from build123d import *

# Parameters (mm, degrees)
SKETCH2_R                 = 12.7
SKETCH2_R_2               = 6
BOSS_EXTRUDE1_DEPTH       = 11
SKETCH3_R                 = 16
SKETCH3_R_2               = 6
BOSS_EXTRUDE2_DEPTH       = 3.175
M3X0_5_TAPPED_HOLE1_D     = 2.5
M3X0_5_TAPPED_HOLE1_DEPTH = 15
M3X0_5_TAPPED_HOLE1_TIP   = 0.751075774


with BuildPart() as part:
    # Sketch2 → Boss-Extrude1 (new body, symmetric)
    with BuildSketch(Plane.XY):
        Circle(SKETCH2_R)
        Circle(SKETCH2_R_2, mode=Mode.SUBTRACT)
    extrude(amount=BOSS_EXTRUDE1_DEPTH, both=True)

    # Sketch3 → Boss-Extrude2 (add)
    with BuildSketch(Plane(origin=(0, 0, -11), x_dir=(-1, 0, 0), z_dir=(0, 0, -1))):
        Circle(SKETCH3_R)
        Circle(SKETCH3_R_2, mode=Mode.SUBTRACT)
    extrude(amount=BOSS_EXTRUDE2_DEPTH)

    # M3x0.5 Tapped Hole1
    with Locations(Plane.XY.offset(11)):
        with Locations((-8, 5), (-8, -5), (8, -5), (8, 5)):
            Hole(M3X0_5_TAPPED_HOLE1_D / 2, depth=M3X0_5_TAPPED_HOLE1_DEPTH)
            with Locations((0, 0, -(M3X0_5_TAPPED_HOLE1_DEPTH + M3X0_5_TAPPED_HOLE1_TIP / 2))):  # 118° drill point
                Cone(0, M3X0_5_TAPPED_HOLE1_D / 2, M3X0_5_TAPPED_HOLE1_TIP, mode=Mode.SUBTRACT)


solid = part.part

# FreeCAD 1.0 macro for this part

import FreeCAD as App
import Part
import Sketcher
Q = App.Units.Quantity

doc = App.newDocument("Part")
params = doc.addObject("Spreadsheet::Sheet", "Params")
for row, (alias, value) in enumerate([
    ("sketch1_diameter", "12 mm"),
    ("sketch1_diameter2", "25.4 mm"),
    ("pad1_length", "22 mm"),
    ("sketch2_diameter", "32 mm"),
    ("sketch2_diameter2", "12 mm"),
    ("pad2_length", "3.175 mm"),
    ("sketch3_diameter", "2.5 mm"),
    ("hole_diameter", "2.5 mm"),
    ("hole_depth", "15 mm"),
], start=1):
    params.set(f"A{row}", alias)
    params.set(f"B{row}", "=" + value)
    params.setAlias(f"B{row}", alias)

body = doc.addObject("PartDesign::Body", "Body")

sketch1 = doc.addObject("Sketcher::SketchObject", "Sketch")
body.addObject(sketch1)
sketch1.AttachmentSupport = (doc.XY_Plane, [""])
sketch1.MapMode = "FlatFace"
sketch1.addGeometry([
    Part.Circle(App.Vector(0, 0, 0), App.Vector(0, 0, 1), 13),
    Part.Circle(App.Vector(0, 0, 0), App.Vector(0, 0, 1), 6),
], False)
sketch1.addConstraint([
    Sketcher.Constraint("Coincident", 0, 3, -1, 1),
    Sketcher.Constraint("Coincident", 1, 3, -1, 1),
    Sketcher.Constraint("Diameter", 1, Q("12 mm")),
    Sketcher.Constraint("Diameter", 0, Q("25.4 mm")),
])
sketch1.setExpression("Constraints[2]", "Params.sketch1_diameter")
sketch1.setExpression("Constraints[3]", "Params.sketch1_diameter2")
pad1 = doc.addObject("PartDesign::Pad", "Pad")
body.addObject(pad1)
pad1.Profile = sketch1
pad1.setExpression("Length", "Params.pad1_length")
pad1.Midplane = True

sketch2 = doc.addObject("Sketcher::SketchObject", "Sketch001")
body.addObject(sketch2)
sketch2.AttachmentSupport = (doc.XY_Plane, [""])
sketch2.MapMode = "FlatFace"
sketch2.AttachmentOffset = App.Placement(App.Vector(0, 0, -11), App.Rotation())
sketch2.addGeometry([
    Part.Circle(App.Vector(0, 0, 0), App.Vector(0, 0, 1), 16),
    Part.Circle(App.Vector(0, 0, 0), App.Vector(0, 0, 1), 6),
], False)
sketch2.addConstraint([
    Sketcher.Constraint("Coincident", 0, 3, -1, 1),
    Sketcher.Constraint("Coincident", 1, 3, -1, 1),
    Sketcher.Constraint("Diameter", 0, Q("32 mm")),
    Sketcher.Constraint("Diameter", 1, Q("12 mm")),
])
sketch2.setExpression("Constraints[2]", "Params.sketch2_diameter")
sketch2.setExpression("Constraints[3]", "Params.sketch2_diameter2")
pad2 = doc.addObject("PartDesign::Pad", "Pad001")
body.addObject(pad2)
pad2.Profile = sketch2
pad2.setExpression("Length", "Params.pad2_length")
pad2.Reversed = True

sketch3 = doc.addObject("Sketcher::SketchObject", "Sketch002")
body.addObject(sketch3)
sketch3.AttachmentSupport = (doc.XY_Plane, [""])
sketch3.MapMode = "FlatFace"
sketch3.AttachmentOffset = App.Placement(App.Vector(0, 0, 11), App.Rotation())
sketch3.addGeometry([
    Part.Circle(App.Vector(-8, 5, 0), App.Vector(0, 0, 1), 1.2),
    Part.Circle(App.Vector(-8, -5, 0), App.Vector(0, 0, 1), 1.2),
    Part.Circle(App.Vector(8, -5, 0), App.Vector(0, 0, 1), 1.2),
    Part.Circle(App.Vector(8, 5, 0), App.Vector(0, 0, 1), 1.2),
], False)
sketch3.addConstraint([
    Sketcher.Constraint("Equal", 0, 1),
    Sketcher.Constraint("Equal", 1, 2),
    Sketcher.Constraint("Equal", 2, 3),
    Sketcher.Constraint("Symmetric", 0, 3, 2, 3, -1, 1),
    Sketcher.Constraint("Symmetric", 1, 3, 3, 3, -1, 1),
    Sketcher.Constraint("Symmetric", 1, 3, 2, 3, -2),
    Sketcher.Constraint("Diameter", 0, Q("2.5 mm")),
    Sketcher.Constraint("DistanceX", 0, 3, -1, 1, Q("8 mm")),
    Sketcher.Constraint("DistanceY", -1, 1, 0, 3, Q("5 mm")),
])
sketch3.setExpression("Constraints[6]", "Params.sketch3_diameter")
doc.recompute()
hole = doc.addObject("PartDesign::Hole", "Hole")
body.addObject(hole)
hole.Profile = sketch3
hole.ThreadType = "None"
hole.setExpression("Diameter", "Params.hole_diameter")
hole.DepthType = "Dimension"
hole.setExpression("Depth", "Params.hole_depth")
hole.DrillPoint = "Angled"
hole.DrillPointAngle = 118

doc.recompute()
